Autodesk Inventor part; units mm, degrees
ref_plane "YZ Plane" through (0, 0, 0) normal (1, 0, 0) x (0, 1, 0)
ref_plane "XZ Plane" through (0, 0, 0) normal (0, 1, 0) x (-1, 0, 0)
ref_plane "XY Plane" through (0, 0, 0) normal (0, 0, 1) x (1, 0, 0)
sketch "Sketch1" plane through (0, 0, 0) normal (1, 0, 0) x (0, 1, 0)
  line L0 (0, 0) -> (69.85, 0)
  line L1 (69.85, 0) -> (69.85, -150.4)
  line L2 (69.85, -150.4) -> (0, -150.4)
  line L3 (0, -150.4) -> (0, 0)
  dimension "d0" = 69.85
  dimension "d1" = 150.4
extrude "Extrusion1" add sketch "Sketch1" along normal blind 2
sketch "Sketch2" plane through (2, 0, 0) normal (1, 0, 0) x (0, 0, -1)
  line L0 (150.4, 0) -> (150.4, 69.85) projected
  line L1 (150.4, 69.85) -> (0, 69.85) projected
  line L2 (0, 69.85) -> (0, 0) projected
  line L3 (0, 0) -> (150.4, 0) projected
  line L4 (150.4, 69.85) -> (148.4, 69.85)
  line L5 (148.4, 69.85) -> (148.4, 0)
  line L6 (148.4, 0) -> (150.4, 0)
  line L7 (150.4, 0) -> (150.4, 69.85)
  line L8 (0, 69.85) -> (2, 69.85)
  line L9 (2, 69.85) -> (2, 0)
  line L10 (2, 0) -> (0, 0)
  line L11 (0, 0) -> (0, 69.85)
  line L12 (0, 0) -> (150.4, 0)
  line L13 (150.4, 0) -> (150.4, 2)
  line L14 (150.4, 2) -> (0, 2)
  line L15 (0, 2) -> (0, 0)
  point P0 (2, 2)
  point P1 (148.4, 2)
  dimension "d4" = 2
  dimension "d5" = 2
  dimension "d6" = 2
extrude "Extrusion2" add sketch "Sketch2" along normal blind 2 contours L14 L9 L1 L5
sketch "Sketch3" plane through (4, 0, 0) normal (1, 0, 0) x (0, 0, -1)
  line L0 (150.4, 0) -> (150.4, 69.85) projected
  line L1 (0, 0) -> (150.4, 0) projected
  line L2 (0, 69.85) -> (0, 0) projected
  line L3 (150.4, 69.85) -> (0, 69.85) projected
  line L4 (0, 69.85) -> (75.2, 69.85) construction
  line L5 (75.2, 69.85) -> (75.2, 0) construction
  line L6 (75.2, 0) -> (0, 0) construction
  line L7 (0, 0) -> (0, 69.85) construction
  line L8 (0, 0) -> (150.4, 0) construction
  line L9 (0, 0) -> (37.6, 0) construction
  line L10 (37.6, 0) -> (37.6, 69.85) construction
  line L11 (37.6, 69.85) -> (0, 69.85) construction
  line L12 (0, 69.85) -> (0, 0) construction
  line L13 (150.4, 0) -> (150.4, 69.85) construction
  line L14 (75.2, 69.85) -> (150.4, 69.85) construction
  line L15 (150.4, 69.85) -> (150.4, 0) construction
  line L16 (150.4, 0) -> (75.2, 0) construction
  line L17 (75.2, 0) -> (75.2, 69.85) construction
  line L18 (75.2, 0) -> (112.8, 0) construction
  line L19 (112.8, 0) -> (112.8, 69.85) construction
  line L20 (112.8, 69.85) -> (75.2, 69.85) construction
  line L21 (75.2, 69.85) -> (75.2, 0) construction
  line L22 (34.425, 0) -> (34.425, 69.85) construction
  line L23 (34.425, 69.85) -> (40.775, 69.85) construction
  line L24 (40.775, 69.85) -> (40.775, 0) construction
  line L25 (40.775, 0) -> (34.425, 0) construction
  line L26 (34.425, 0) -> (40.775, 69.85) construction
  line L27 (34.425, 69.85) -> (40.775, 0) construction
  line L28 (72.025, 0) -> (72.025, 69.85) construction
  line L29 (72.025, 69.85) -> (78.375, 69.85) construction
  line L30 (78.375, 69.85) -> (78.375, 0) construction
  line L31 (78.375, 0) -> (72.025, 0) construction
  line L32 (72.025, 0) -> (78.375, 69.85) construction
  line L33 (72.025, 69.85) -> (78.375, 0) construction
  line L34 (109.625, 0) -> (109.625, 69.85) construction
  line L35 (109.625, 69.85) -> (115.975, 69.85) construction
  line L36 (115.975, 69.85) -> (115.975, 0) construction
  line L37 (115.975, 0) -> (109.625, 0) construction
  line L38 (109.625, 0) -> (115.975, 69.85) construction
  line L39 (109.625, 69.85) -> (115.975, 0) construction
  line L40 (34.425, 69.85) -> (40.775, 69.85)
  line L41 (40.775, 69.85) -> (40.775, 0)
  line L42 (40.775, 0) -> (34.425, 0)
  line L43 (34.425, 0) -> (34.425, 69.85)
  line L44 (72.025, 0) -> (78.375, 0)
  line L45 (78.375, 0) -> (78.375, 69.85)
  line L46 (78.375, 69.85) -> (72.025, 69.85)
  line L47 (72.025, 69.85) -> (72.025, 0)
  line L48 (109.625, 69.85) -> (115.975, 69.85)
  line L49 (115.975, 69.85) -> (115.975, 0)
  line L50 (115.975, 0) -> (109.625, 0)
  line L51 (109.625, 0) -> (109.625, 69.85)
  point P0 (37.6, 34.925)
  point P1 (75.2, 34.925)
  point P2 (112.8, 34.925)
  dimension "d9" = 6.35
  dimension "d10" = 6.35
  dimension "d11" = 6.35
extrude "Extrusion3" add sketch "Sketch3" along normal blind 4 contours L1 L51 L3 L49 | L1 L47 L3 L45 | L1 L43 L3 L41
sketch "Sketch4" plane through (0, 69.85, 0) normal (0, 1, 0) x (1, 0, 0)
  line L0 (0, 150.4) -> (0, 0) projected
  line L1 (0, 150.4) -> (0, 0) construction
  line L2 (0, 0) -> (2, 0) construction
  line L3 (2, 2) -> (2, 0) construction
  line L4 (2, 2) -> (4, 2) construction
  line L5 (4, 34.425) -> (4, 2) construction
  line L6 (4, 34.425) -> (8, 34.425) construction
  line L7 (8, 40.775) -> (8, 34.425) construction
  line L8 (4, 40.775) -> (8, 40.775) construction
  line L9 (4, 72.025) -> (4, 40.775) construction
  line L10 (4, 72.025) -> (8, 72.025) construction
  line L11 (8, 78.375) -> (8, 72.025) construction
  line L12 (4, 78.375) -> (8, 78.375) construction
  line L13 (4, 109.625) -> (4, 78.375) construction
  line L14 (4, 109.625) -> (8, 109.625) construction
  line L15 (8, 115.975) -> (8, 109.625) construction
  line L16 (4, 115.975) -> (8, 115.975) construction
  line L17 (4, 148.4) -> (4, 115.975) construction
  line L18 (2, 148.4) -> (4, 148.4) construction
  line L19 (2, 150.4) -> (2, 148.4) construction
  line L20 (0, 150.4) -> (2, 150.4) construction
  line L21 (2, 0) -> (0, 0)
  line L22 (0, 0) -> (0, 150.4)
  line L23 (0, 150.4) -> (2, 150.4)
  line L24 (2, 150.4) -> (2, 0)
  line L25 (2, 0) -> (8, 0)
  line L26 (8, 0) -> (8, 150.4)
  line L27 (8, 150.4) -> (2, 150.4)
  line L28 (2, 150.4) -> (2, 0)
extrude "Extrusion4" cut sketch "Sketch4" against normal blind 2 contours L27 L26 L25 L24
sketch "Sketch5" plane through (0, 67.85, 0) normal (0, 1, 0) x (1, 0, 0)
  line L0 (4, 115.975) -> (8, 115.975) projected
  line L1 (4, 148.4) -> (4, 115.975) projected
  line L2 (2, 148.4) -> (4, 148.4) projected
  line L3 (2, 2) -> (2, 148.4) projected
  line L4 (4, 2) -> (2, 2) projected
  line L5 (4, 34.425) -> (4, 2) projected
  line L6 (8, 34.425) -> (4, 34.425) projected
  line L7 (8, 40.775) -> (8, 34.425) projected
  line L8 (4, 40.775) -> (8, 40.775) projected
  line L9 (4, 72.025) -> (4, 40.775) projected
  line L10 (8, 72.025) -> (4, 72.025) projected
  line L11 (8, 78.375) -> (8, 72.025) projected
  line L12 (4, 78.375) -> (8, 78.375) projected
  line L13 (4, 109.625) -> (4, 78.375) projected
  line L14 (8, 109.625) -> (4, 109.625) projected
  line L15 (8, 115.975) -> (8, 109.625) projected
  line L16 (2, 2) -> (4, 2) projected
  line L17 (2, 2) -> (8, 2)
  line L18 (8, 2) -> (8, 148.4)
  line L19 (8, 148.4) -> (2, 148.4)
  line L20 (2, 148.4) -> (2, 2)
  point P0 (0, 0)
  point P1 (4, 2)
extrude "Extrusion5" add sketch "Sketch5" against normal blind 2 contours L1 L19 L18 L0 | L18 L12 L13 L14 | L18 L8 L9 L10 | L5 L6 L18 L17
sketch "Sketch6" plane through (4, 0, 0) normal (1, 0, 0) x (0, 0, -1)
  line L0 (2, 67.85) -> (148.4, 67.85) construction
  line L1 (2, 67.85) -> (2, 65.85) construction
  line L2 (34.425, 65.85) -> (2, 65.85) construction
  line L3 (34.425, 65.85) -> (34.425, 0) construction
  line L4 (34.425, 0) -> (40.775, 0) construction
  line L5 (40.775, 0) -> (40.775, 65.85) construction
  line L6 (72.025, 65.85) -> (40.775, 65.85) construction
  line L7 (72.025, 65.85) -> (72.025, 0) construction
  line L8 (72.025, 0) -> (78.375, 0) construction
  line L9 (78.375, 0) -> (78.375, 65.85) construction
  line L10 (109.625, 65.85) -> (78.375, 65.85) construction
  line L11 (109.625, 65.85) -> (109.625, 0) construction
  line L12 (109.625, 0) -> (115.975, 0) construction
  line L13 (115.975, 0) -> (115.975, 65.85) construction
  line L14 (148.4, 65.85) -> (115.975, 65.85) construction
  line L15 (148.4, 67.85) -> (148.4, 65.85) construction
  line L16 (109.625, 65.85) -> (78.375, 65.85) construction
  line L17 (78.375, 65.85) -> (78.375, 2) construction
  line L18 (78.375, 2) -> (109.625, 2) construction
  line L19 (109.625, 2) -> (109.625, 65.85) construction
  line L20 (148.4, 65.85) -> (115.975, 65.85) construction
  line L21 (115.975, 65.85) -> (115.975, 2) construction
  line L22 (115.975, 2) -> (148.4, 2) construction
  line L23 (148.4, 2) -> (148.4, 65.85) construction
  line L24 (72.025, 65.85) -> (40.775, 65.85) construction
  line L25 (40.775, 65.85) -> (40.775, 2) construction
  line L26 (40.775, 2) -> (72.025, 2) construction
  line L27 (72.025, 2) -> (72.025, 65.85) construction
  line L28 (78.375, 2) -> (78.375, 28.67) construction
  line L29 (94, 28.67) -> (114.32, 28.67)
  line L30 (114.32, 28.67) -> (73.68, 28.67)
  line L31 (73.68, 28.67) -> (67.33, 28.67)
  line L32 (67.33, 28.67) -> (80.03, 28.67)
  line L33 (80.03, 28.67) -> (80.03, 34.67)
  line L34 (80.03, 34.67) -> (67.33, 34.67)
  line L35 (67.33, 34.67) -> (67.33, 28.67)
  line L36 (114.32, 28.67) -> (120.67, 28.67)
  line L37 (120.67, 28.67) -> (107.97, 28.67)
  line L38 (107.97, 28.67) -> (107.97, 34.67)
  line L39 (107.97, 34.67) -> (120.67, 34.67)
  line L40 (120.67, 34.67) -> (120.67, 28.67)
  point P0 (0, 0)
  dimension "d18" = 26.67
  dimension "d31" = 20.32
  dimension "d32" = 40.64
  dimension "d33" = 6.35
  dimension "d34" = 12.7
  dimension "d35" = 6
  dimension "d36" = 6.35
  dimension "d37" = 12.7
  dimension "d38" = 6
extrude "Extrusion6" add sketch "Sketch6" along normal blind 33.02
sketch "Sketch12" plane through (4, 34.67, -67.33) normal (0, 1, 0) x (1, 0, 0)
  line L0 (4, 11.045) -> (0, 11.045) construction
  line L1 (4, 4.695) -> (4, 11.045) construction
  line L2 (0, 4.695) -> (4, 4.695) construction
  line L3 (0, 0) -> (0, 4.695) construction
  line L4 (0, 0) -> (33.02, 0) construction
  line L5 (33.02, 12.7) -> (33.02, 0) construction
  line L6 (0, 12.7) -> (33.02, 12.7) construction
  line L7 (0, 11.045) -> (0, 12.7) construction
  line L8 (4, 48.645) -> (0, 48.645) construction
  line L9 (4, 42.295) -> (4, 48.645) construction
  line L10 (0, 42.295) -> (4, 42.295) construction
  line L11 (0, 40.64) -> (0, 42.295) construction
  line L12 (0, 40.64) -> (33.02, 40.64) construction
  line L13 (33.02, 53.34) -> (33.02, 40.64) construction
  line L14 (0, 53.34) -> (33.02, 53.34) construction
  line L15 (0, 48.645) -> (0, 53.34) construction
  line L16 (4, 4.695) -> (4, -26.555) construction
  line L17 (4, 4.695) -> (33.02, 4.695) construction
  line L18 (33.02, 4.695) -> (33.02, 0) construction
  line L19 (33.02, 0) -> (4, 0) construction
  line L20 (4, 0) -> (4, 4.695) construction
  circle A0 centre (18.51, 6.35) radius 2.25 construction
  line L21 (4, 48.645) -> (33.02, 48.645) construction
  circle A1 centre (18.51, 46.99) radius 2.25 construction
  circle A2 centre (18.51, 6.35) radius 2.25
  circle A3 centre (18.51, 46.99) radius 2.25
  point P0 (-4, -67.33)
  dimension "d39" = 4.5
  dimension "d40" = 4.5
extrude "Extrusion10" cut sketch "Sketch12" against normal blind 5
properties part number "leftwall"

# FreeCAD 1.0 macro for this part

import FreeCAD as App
import Part
import Sketcher

V = App.Vector

doc = App.newDocument("Part")
body = doc.addObject("PartDesign::Body", "Body")

# Sketch on YZ plane
sketch1 = body.newObject("Sketcher::SketchObject", "Sketch")
sketch1.AttachmentSupport = (doc.getObject("YZ_Plane"), [""])
sketch1.MapMode = "FlatFace"
sketch1.addGeometry(Part.LineSegment(V(70, 0, 0), V(0, 0, 0)), False)
sketch1.addGeometry(Part.LineSegment(V(0, 0, 0), V(0, -150, 0)), False)
sketch1.addGeometry(Part.LineSegment(V(0, -150, 0), V(70, -150, 0)), False)
sketch1.addGeometry(Part.LineSegment(V(70, -150, 0), V(70, 0, 0)), False)
sketch1.addConstraint(Sketcher.Constraint("Coincident", 0, 2, 1, 1))
sketch1.addConstraint(Sketcher.Constraint("Coincident", 1, 2, 2, 1))
sketch1.addConstraint(Sketcher.Constraint("Coincident", 2, 2, 3, 1))
sketch1.addConstraint(Sketcher.Constraint("Coincident", 3, 2, 0, 1))
sketch1.addConstraint(Sketcher.Constraint("Horizontal", 0))
sketch1.addConstraint(Sketcher.Constraint("Vertical", 1))
sketch1.addConstraint(Sketcher.Constraint("Horizontal", 2))
sketch1.addConstraint(Sketcher.Constraint("Vertical", 3))
sketch1.addConstraint(Sketcher.Constraint("Coincident", 0, 2, -1, 1))
sketch1.addConstraint(Sketcher.Constraint("DistanceY", 1, 2, 1, 1, 150.4))
sketch1.addConstraint(Sketcher.Constraint("DistanceX", 0, 2, 0, 1, 69.85))
pad1 = body.newObject("PartDesign::Pad", "Pad")
pad1.Profile = sketch1
pad1.Length = 2

# Sketch on YZ plane
sketch2 = body.newObject("Sketcher::SketchObject", "Sketch001")
sketch2.AttachmentSupport = (doc.getObject("YZ_Plane"), [""])
sketch2.MapMode = "FlatFace"
sketch2.AttachmentOffset = App.Placement(V(0, 0, 2), App.Rotation())
sketch2.addGeometry(Part.LineSegment(V(2, -2, 0), V(2, -148, 0)), False)
sketch2.addGeometry(Part.LineSegment(V(2, -148, 0), V(70, -148, 0)), False)
sketch2.addGeometry(Part.LineSegment(V(70, -148, 0), V(70, -2, 0)), False)
sketch2.addGeometry(Part.LineSegment(V(70, -2, 0), V(2, -2, 0)), False)
sketch2.addConstraint(Sketcher.Constraint("Coincident", 0, 2, 1, 1))
sketch2.addConstraint(Sketcher.Constraint("Coincident", 1, 2, 2, 1))
sketch2.addConstraint(Sketcher.Constraint("Coincident", 2, 2, 3, 1))
sketch2.addConstraint(Sketcher.Constraint("Coincident", 3, 2, 0, 1))
sketch2.addConstraint(Sketcher.Constraint("Vertical", 0))
sketch2.addConstraint(Sketcher.Constraint("Horizontal", 1))
sketch2.addConstraint(Sketcher.Constraint("Vertical", 2))
sketch2.addConstraint(Sketcher.Constraint("Horizontal", 3))
sketch2.addConstraint(Sketcher.Constraint("DistanceX", -1, 1, 0, 2, 2.0))
sketch2.addConstraint(Sketcher.Constraint("DistanceY", 2, 2, -1, 1, 2.0))
sketch2.addConstraint(Sketcher.Constraint("DistanceY", 0, 2, 0, 1, 146.4))
sketch2.addConstraint(Sketcher.Constraint("DistanceX", 1, 1, 1, 2, 67.85))
pad2 = body.newObject("PartDesign::Pad", "Pad001")
pad2.Profile = sketch2
pad2.Length = 2

# Sketch on YZ plane
sketch3 = body.newObject("Sketcher::SketchObject", "Sketch002")
sketch3.AttachmentSupport = (doc.getObject("YZ_Plane"), [""])
sketch3.MapMode = "FlatFace"
sketch3.AttachmentOffset = App.Placement(V(0, 0, 4), App.Rotation())
sketch3.addGeometry(Part.LineSegment(V(0, -110, 0), V(0, -116, 0)), False)
sketch3.addGeometry(Part.LineSegment(V(0, -116, 0), V(70, -116, 0)), False)
sketch3.addGeometry(Part.LineSegment(V(70, -116, 0), V(70, -110, 0)), False)
sketch3.addGeometry(Part.LineSegment(V(70, -110, 0), V(0, -110, 0)), False)
sketch3.addGeometry(Part.LineSegment(V(0, -72, 0), V(0, -78, 0)), False)
sketch3.addGeometry(Part.LineSegment(V(0, -78, 0), V(70, -78, 0)), False)
sketch3.addGeometry(Part.LineSegment(V(70, -78, 0), V(70, -72, 0)), False)
sketch3.addGeometry(Part.LineSegment(V(70, -72, 0), V(0, -72, 0)), False)
sketch3.addGeometry(Part.LineSegment(V(0, -34, 0), V(0, -41, 0)), False)
sketch3.addGeometry(Part.LineSegment(V(0, -41, 0), V(70, -41, 0)), False)
sketch3.addGeometry(Part.LineSegment(V(70, -41, 0), V(70, -34, 0)), False)
sketch3.addGeometry(Part.LineSegment(V(70, -34, 0), V(0, -34, 0)), False)
sketch3.addConstraint(Sketcher.Constraint("Coincident", 0, 2, 1, 1))
sketch3.addConstraint(Sketcher.Constraint("Coincident", 1, 2, 2, 1))
sketch3.addConstraint(Sketcher.Constraint("Coincident", 2, 2, 3, 1))
sketch3.addConstraint(Sketcher.Constraint("Coincident", 3, 2, 0, 1))
sketch3.addConstraint(Sketcher.Constraint("Coincident", 4, 2, 5, 1))
sketch3.addConstraint(Sketcher.Constraint("Coincident", 5, 2, 6, 1))
sketch3.addConstraint(Sketcher.Constraint("Coincident", 6, 2, 7, 1))
sketch3.addConstraint(Sketcher.Constraint("Coincident", 7, 2, 4, 1))
sketch3.addConstraint(Sketcher.Constraint("Coincident", 8, 2, 9, 1))
sketch3.addConstraint(Sketcher.Constraint("Coincident", 9, 2, 10, 1))
sketch3.addConstraint(Sketcher.Constraint("Coincident", 10, 2, 11, 1))
sketch3.addConstraint(Sketcher.Constraint("Coincident", 11, 2, 8, 1))
sketch3.addConstraint(Sketcher.Constraint("Vertical", 0))
sketch3.addConstraint(Sketcher.Constraint("Horizontal", 1))
sketch3.addConstraint(Sketcher.Constraint("Vertical", 2))
sketch3.addConstraint(Sketcher.Constraint("Horizontal", 3))
sketch3.addConstraint(Sketcher.Constraint("Vertical", 4))
sketch3.addConstraint(Sketcher.Constraint("Horizontal", 5))
sketch3.addConstraint(Sketcher.Constraint("Vertical", 6))
sketch3.addConstraint(Sketcher.Constraint("Horizontal", 7))
sketch3.addConstraint(Sketcher.Constraint("Vertical", 8))
sketch3.addConstraint(Sketcher.Constraint("Horizontal", 9))
sketch3.addConstraint(Sketcher.Constraint("Vertical", 10))
sketch3.addConstraint(Sketcher.Constraint("Horizontal", 11))
sketch3.addConstraint(Sketcher.Constraint("PointOnObject", 0, 2, -2))
sketch3.addConstraint(Sketcher.Constraint("PointOnObject", 4, 2, -2))
sketch3.addConstraint(Sketcher.Constraint("PointOnObject", 8, 2, -2))
sketch3.addConstraint(Sketcher.Constraint("Vertical", 2, 2, 5, 2))
sketch3.addConstraint(Sketcher.Constraint("Vertical", 6, 2, 9, 2))
sketch3.addConstraint(Sketcher.Constraint("Equal", 2, 4))
sketch3.addConstraint(Sketcher.Constraint("Equal", 6, 8))
sketch3.addConstraint(Sketcher.Constraint("DistanceY", 0, 2, 0, 1, 6.35))
sketch3.addConstraint(Sketcher.Constraint("DistanceX", 1, 1, 1, 2, 69.85))
sketch3.addConstraint(Sketcher.Constraint("DistanceY", 0, 2, 4, 2, 37.6))
sketch3.addConstraint(Sketcher.Constraint("DistanceY", 4, 2, 8, 2, 37.6))
sketch3.addConstraint(Sketcher.Constraint("DistanceY", 0, 2, -1, 1, 115.975))
pad3 = body.newObject("PartDesign::Pad", "Pad002")
pad3.Profile = sketch3
pad3.Length = 4

# Sketch on XZ plane
sketch4 = body.newObject("Sketcher::SketchObject", "Sketch003")
sketch4.AttachmentSupport = (doc.getObject("XZ_Plane"), [""])
sketch4.MapMode = "FlatFace"
sketch4.AttachmentOffset = App.Placement(V(0, 0, -69.85), App.Rotation())
sketch4.addGeometry(Part.LineSegment(V(8, -150, 0), V(2, -150, 0)), False)
sketch4.addGeometry(Part.LineSegment(V(2, -150, 0), V(2, 0, 0)), False)
sketch4.addGeometry(Part.LineSegment(V(2, 0, 0), V(8, 0, 0)), False)
sketch4.addGeometry(Part.LineSegment(V(8, 0, 0), V(8, -150, 0)), False)
sketch4.addConstraint(Sketcher.Constraint("Coincident", 0, 2, 1, 1))
sketch4.addConstraint(Sketcher.Constraint("Coincident", 1, 2, 2, 1))
sketch4.addConstraint(Sketcher.Constraint("Coincident", 2, 2, 3, 1))
sketch4.addConstraint(Sketcher.Constraint("Coincident", 3, 2, 0, 1))
sketch4.addConstraint(Sketcher.Constraint("Horizontal", 0))
sketch4.addConstraint(Sketcher.Constraint("Vertical", 1))
sketch4.addConstraint(Sketcher.Constraint("Horizontal", 2))
sketch4.addConstraint(Sketcher.Constraint("Vertical", 3))
sketch4.addConstraint(Sketcher.Constraint("PointOnObject", 1, 2, -1))
sketch4.addConstraint(Sketcher.Constraint("DistanceX", 0, 2, 0, 1, 6.0))
sketch4.addConstraint(Sketcher.Constraint("DistanceY", 1, 1, 1, 2, 150.4))
sketch4.addConstraint(Sketcher.Constraint("DistanceX", -1, 1, 0, 2, 2.0))
pocket1 = body.newObject("PartDesign::Pocket", "Pocket")
pocket1.Profile = sketch4
pocket1.Length = 2
pocket1.Reversed = True

# Sketch on XZ plane
sketch5 = body.newObject("Sketcher::SketchObject", "Sketch004")
sketch5.AttachmentSupport = (doc.getObject("XZ_Plane"), [""])
sketch5.MapMode = "FlatFace"
sketch5.AttachmentOffset = App.Placement(V(0, 0, -67.85), App.Rotation())
sketch5.addGeometry(Part.LineSegment(V(4, -148.4, 0), V(4, -116, 0)), False)
sketch5.addGeometry(Part.LineSegment(V(4, -116, 0), V(8, -116, 0)), False)
sketch5.addGeometry(Part.LineSegment(V(8, -116, 0), V(8, -148.4, 0)), False)
sketch5.addGeometry(Part.LineSegment(V(8, -148.4, 0), V(4, -148.4, 0)), False)
sketch5.addGeometry(Part.LineSegment(V(8, -78.4, 0), V(8, -109.6, 0)), False)
sketch5.addGeometry(Part.LineSegment(V(8, -109.6, 0), V(4, -109.6, 0)), False)
sketch5.addGeometry(Part.LineSegment(V(4, -109.6, 0), V(4, -78.4, 0)), False)
sketch5.addGeometry(Part.LineSegment(V(4, -78.4, 0), V(8, -78.4, 0)), False)
sketch5.addGeometry(Part.LineSegment(V(8, -40.8, 0), V(8, -72, 0)), False)
sketch5.addGeometry(Part.LineSegment(V(8, -72, 0), V(4, -72, 0)), False)
sketch5.addGeometry(Part.LineSegment(V(4, -72, 0), V(4, -40.8, 0)), False)
sketch5.addGeometry(Part.LineSegment(V(4, -40.8, 0), V(8, -40.8, 0)), False)
sketch5.addGeometry(Part.LineSegment(V(4, -34.4, 0), V(4, -2, 0)), False)
sketch5.addGeometry(Part.LineSegment(V(4, -2, 0), V(8, -2, 0)), False)
sketch5.addGeometry(Part.LineSegment(V(8, -2, 0), V(8, -34.4, 0)), False)
sketch5.addGeometry(Part.LineSegment(V(8, -34.4, 0), V(4, -34.4, 0)), False)
sketch5.addConstraint(Sketcher.Constraint("Coincident", 0, 2, 1, 1))
sketch5.addConstraint(Sketcher.Constraint("Coincident", 1, 2, 2, 1))
sketch5.addConstraint(Sketcher.Constraint("Coincident", 2, 2, 3, 1))
sketch5.addConstraint(Sketcher.Constraint("Coincident", 3, 2, 0, 1))
sketch5.addConstraint(Sketcher.Constraint("Coincident", 4, 2, 5, 1))
sketch5.addConstraint(Sketcher.Constraint("Coincident", 5, 2, 6, 1))
sketch5.addConstraint(Sketcher.Constraint("Coincident", 6, 2, 7, 1))
sketch5.addConstraint(Sketcher.Constraint("Coincident", 7, 2, 4, 1))
sketch5.addConstraint(Sketcher.Constraint("Coincident", 8, 2, 9, 1))
sketch5.addConstraint(Sketcher.Constraint("Coincident", 9, 2, 10, 1))
sketch5.addConstraint(Sketcher.Constraint("Coincident", 10, 2, 11, 1))
sketch5.addConstraint(Sketcher.Constraint("Coincident", 11, 2, 8, 1))
sketch5.addConstraint(Sketcher.Constraint("Coincident", 12, 2, 13, 1))
sketch5.addConstraint(Sketcher.Constraint("Coincident", 13, 2, 14, 1))
sketch5.addConstraint(Sketcher.Constraint("Coincident", 14, 2, 15, 1))
sketch5.addConstraint(Sketcher.Constraint("Coincident", 15, 2, 12, 1))
sketch5.addConstraint(Sketcher.Constraint("Vertical", 0))
sketch5.addConstraint(Sketcher.Constraint("Horizontal", 1))
sketch5.addConstraint(Sketcher.Constraint("Vertical", 2))
sketch5.addConstraint(Sketcher.Constraint("Horizontal", 3))
sketch5.addConstraint(Sketcher.Constraint("Vertical", 4))
sketch5.addConstraint(Sketcher.Constraint("Horizontal", 5))
sketch5.addConstraint(Sketcher.Constraint("Vertical", 6))
sketch5.addConstraint(Sketcher.Constraint("Horizontal", 7))
sketch5.addConstraint(Sketcher.Constraint("Vertical", 8))
sketch5.addConstraint(Sketcher.Constraint("Horizontal", 9))
sketch5.addConstraint(Sketcher.Constraint("Vertical", 10))
sketch5.addConstraint(Sketcher.Constraint("Horizontal", 11))
sketch5.addConstraint(Sketcher.Constraint("Vertical", 12))
sketch5.addConstraint(Sketcher.Constraint("Horizontal", 13))
sketch5.addConstraint(Sketcher.Constraint("Vertical", 14))
sketch5.addConstraint(Sketcher.Constraint("Horizontal", 15))
sketch5.addConstraint(Sketcher.Constraint("Vertical", 2, 2, 4, 2))
sketch5.addConstraint(Sketcher.Constraint("Vertical", 3, 2, 5, 2))
sketch5.addConstraint(Sketcher.Constraint("Vertical", 7, 2, 8, 2))
sketch5.addConstraint(Sketcher.Constraint("Vertical", 6, 2, 9, 2))
sketch5.addConstraint(Sketcher.Constraint("Vertical", 10, 2, 12, 2))
sketch5.addConstraint(Sketcher.Constraint("Vertical", 11, 2, 13, 2))
sketch5.addConstraint(Sketcher.Constraint("Equal", 6, 8))
sketch5.addConstraint(Sketcher.Constraint("Equal", 2, 12))
sketch5.addConstraint(Sketcher.Constraint("DistanceX", 1, 1, 1, 2, 4.0))
sketch5.addConstraint(Sketcher.Constraint("DistanceX", -1, 1, 0, 2, 4.0))
sketch5.addConstraint(Sketcher.Constraint("DistanceY", 12, 2, -1, 1, 2.0))
sketch5.addConstraint(Sketcher.Constraint("DistanceY", 4, 2, 4, 1, 31.25))
sketch5.addConstraint(Sketcher.Constraint("DistanceY", 2, 2, -1, 1, 148.4))
sketch5.addConstraint(Sketcher.Constraint("DistanceY", 0, 2, 6, 2, 37.6))
sketch5.addConstraint(Sketcher.Constraint("DistanceY", 4, 2, 8, 2, 37.6))
sketch5.addConstraint(Sketcher.Constraint("DistanceY", 8, 2, 14, 2, 37.6))
pad4 = body.newObject("PartDesign::Pad", "Pad003")
pad4.Profile = sketch5
pad4.Length = 2

# Sketch on YZ plane
sketch6 = body.newObject("Sketcher::SketchObject", "Sketch005")
sketch6.AttachmentSupport = (doc.getObject("YZ_Plane"), [""])
sketch6.MapMode = "FlatFace"
sketch6.AttachmentOffset = App.Placement(V(0, 0, 4), App.Rotation())
sketch6.addGeometry(Part.LineSegment(V(35, -108, 0), V(29, -108, 0)), False)
sketch6.addGeometry(Part.LineSegment(V(29, -108, 0), V(29, -121, 0)), False)
sketch6.addGeometry(Part.LineSegment(V(29, -121, 0), V(35, -121, 0)), False)
sketch6.addGeometry(Part.LineSegment(V(35, -121, 0), V(35, -108, 0)), False)
sketch6.addGeometry(Part.LineSegment(V(29, -67, 0), V(29, -80, 0)), False)
sketch6.addGeometry(Part.LineSegment(V(29, -80, 0), V(35, -80, 0)), False)
sketch6.addGeometry(Part.LineSegment(V(35, -80, 0), V(35, -67, 0)), False)
sketch6.addGeometry(Part.LineSegment(V(35, -67, 0), V(29, -67, 0)), False)
sketch6.addConstraint(Sketcher.Constraint("Coincident", 0, 2, 1, 1))
sketch6.addConstraint(Sketcher.Constraint("Coincident", 1, 2, 2, 1))
sketch6.addConstraint(Sketcher.Constraint("Coincident", 2, 2, 3, 1))
sketch6.addConstraint(Sketcher.Constraint("Coincident", 3, 2, 0, 1))
sketch6.addConstraint(Sketcher.Constraint("Coincident", 4, 2, 5, 1))
sketch6.addConstraint(Sketcher.Constraint("Coincident", 5, 2, 6, 1))
sketch6.addConstraint(Sketcher.Constraint("Coincident", 6, 2, 7, 1))
sketch6.addConstraint(Sketcher.Constraint("Coincident", 7, 2, 4, 1))
sketch6.addConstraint(Sketcher.Constraint("Horizontal", 0))
sketch6.addConstraint(Sketcher.Constraint("Vertical", 1))
sketch6.addConstraint(Sketcher.Constraint("Horizontal", 2))
sketch6.addConstraint(Sketcher.Constraint("Vertical", 3))
sketch6.addConstraint(Sketcher.Constraint("Vertical", 4))
sketch6.addConstraint(Sketcher.Constraint("Horizontal", 5))
sketch6.addConstraint(Sketcher.Constraint("Vertical", 6))
sketch6.addConstraint(Sketcher.Constraint("Horizontal", 7))
sketch6.addConstraint(Sketcher.Constraint("Vertical", 1, 2, 4, 2))
sketch6.addConstraint(Sketcher.Constraint("Vertical", 3, 2, 5, 2))
sketch6.addConstraint(Sketcher.Constraint("Equal", 3, 4))
sketch6.addConstraint(Sketcher.Constraint("DistanceX", 0, 2, 0, 1, 6.0))
sketch6.addConstraint(Sketcher.Constraint("DistanceY", 1, 2, 1, 1, 12.7))
sketch6.addConstraint(Sketcher.Constraint("DistanceY", 1, 2, 4, 2, 40.64))
sketch6.addConstraint(Sketcher.Constraint("DistanceX", -1, 1, 0, 2, 28.67))
sketch6.addConstraint(Sketcher.Constraint("DistanceY", 0, 2, -1, 1, 107.97))
pad5 = body.newObject("PartDesign::Pad", "Pad004")
pad5.Profile = sketch6
pad5.Length = 33.02

# Sketch on XZ plane
sketch7 = body.newObject("Sketcher::SketchObject", "Sketch006")
sketch7.AttachmentSupport = (doc.getObject("XZ_Plane"), [""])
sketch7.MapMode = "FlatFace"
sketch7.AttachmentOffset = App.Placement(V(0, 0, -34.67), App.Rotation())
sketch7.addGeometry(Part.Circle(V(22.5, -73.7, 0), V(0, 0, 1), 2.2), False)
sketch7.addGeometry(Part.Circle(V(22.5, -114.3, 0), V(0, 0, 1), 2.2), False)
sketch7.addConstraint(Sketcher.Constraint("Equal", 0, 1))
sketch7.addConstraint(Sketcher.Constraint("Vertical", 0, 3, 1, 3))
sketch7.addConstraint(Sketcher.Constraint("Diameter", 0, 4.5))
sketch7.addConstraint(Sketcher.Constraint("DistanceX", -1, 1, 0, 3, 22.51))
sketch7.addConstraint(Sketcher.Constraint("DistanceY", 0, 3, -1, 1, 73.68))
sketch7.addConstraint(Sketcher.Constraint("DistanceY", 1, 3, -1, 1, 114.32))
pocket2 = body.newObject("PartDesign::Pocket", "Pocket001")
pocket2.Profile = sketch7
pocket2.Length = 5
pocket2.Reversed = True

doc.recompute()
